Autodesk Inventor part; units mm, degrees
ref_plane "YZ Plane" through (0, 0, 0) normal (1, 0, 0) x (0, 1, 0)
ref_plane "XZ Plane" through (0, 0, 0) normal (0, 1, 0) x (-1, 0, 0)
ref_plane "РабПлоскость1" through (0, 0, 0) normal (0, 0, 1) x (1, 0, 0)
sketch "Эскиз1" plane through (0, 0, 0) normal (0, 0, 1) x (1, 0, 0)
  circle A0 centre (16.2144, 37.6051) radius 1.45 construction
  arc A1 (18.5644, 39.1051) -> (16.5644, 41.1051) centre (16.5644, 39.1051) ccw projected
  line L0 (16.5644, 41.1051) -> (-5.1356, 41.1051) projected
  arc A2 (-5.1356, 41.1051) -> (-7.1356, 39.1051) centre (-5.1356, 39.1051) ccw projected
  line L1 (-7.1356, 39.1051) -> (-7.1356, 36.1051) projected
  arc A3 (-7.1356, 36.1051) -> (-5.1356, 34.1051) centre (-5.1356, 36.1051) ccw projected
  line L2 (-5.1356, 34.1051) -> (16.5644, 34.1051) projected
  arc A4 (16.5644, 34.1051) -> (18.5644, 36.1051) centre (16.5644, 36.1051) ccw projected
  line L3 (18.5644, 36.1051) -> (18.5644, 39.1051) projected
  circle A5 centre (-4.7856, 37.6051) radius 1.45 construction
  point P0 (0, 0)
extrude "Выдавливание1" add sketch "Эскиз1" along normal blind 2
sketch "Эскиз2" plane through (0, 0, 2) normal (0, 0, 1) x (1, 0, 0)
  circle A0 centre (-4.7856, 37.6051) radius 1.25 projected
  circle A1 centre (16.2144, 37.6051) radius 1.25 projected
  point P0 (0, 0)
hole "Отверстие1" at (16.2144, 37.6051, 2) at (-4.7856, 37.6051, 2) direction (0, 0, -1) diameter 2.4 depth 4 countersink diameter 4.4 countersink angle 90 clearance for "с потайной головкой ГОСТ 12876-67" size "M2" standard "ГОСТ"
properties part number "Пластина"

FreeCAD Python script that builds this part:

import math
import FreeCAD as App
import Part
import Sketcher
from FreeCAD import Vector

doc = App.newDocument("Part")
params = doc.addObject("Spreadsheet::Sheet", "Params")
for row, (alias, value) in enumerate([
    ("sketch1_radius", "2 mm"),
    ("sketch1_height", "3 mm"),
    ("sketch1_width", "21.7 mm"),
    ("pad1_length", "2 mm"),
    ("sketch2_diameter", "2.4 mm"),
    ("hole_diameter", "2.4 mm"),
    ("hole_depth", "4 mm"),
    ("hole_csink_diameter", "4.4 mm"),
], start=1):
    params.set(f"A{row}", alias)
    params.set(f"B{row}", "=" + value)
    params.setAlias(f"B{row}", alias)

body = doc.addObject("PartDesign::Body", "Body")

# Sketch on XY plane
sketch1 = doc.addObject("Sketcher::SketchObject", "Sketch")
body.addObject(sketch1)
sketch1.AttachmentSupport = (doc.XY_Plane, [""])
sketch1.MapMode = "FlatFace"
sketch1.addGeometry(Part.LineSegment(Vector(18.5644, 36.1051, 0), Vector(18.5644, 39.1051, 0)), False)
sketch1.addGeometry(Part.ArcOfCircle(Part.Circle(Vector(16.5644, 39.1051, 0), Vector(0, 0, 1), 2), math.radians(0), math.radians(90)), False)
sketch1.addGeometry(Part.LineSegment(Vector(16.5644, 41.1051, 0), Vector(-5.1356, 41.1051, 0)), False)
sketch1.addGeometry(Part.ArcOfCircle(Part.Circle(Vector(-5.1356, 39.1051, 0), Vector(0, 0, 1), 2), math.radians(90), math.radians(180)), False)
sketch1.addGeometry(Part.LineSegment(Vector(-7.1356, 39.1051, 0), Vector(-7.1356, 36.1051, 0)), False)
sketch1.addGeometry(Part.ArcOfCircle(Part.Circle(Vector(-5.1356, 36.1051, 0), Vector(0, 0, 1), 2), math.radians(180), math.radians(270)), False)
sketch1.addGeometry(Part.LineSegment(Vector(-5.1356, 34.1051, 0), Vector(16.5644, 34.1051, 0)), False)
sketch1.addGeometry(Part.ArcOfCircle(Part.Circle(Vector(16.5644, 36.1051, 0), Vector(0, 0, 1), 2), math.radians(-90), math.radians(0)), False)
sketch1.addConstraint(Sketcher.Constraint("Tangent", 0, 2, 1, 1))
sketch1.addConstraint(Sketcher.Constraint("Tangent", 1, 2, 2, 1))
sketch1.addConstraint(Sketcher.Constraint("Tangent", 2, 2, 3, 1))
sketch1.addConstraint(Sketcher.Constraint("Tangent", 3, 2, 4, 1))
sketch1.addConstraint(Sketcher.Constraint("Tangent", 4, 2, 5, 1))
sketch1.addConstraint(Sketcher.Constraint("Tangent", 5, 2, 6, 1))
sketch1.addConstraint(Sketcher.Constraint("Tangent", 6, 2, 7, 1))
sketch1.addConstraint(Sketcher.Constraint("Tangent", 7, 2, 0, 1))
sketch1.addConstraint(Sketcher.Constraint("Vertical", 0))
sketch1.addConstraint(Sketcher.Constraint("Horizontal", 2))
sketch1.addConstraint(Sketcher.Constraint("Vertical", 4))
sketch1.addConstraint(Sketcher.Constraint("Horizontal", 6))
sketch1.addConstraint(Sketcher.Constraint("Equal", 1, 3))
sketch1.addConstraint(Sketcher.Constraint("Equal", 3, 5))
sketch1.addConstraint(Sketcher.Constraint("Equal", 5, 7))
sketch1.addConstraint(Sketcher.Constraint("Radius", 1, 2.0))
sketch1.addConstraint(Sketcher.Constraint("DistanceY", 0, 1, 0, 2, 3.0))
sketch1.addConstraint(Sketcher.Constraint("DistanceX", 2, 2, 2, 1, 21.7))
sketch1.addConstraint(Sketcher.Constraint("DistanceY", -1, 1, 1, 3, 39.105))
sketch1.addConstraint(Sketcher.Constraint("DistanceX", -1, 1, 1, 3, 16.5644))
sketch1.setExpression("Constraints[15]", "Params.sketch1_radius")
sketch1.setExpression("Constraints[16]", "Params.sketch1_height")
sketch1.setExpression("Constraints[17]", "Params.sketch1_width")
pad1 = doc.addObject("PartDesign::Pad", "Pad")
body.addObject(pad1)
pad1.Profile = sketch1
pad1.setExpression("Length", "Params.pad1_length")

# Sketch on XY plane
sketch2 = doc.addObject("Sketcher::SketchObject", "Sketch001")
body.addObject(sketch2)
sketch2.AttachmentSupport = (doc.XY_Plane, [""])
sketch2.MapMode = "FlatFace"
sketch2.AttachmentOffset = App.Placement(Vector(0, 0, 2), App.Rotation())
sketch2.addGeometry(Part.Circle(Vector(16.2144, 37.6051, 0), Vector(0, 0, 1), 1.2), False)
sketch2.addGeometry(Part.Circle(Vector(-4.7856, 37.6051, 0), Vector(0, 0, 1), 1.2), False)
sketch2.addConstraint(Sketcher.Constraint("Equal", 0, 1))
sketch2.addConstraint(Sketcher.Constraint("Horizontal", 0, 3, 1, 3))
sketch2.addConstraint(Sketcher.Constraint("Diameter", 0, 2.4))
sketch2.addConstraint(Sketcher.Constraint("DistanceX", 1, 3, 0, 3, 21.0))
sketch2.addConstraint(Sketcher.Constraint("DistanceY", -1, 1, 0, 3, 37.605))
sketch2.addConstraint(Sketcher.Constraint("DistanceX", -1, 1, 0, 3, 16.2144))
sketch2.setExpression("Constraints[2]", "Params.sketch2_diameter")
doc.recompute()
hole = doc.addObject("PartDesign::Hole", "Hole")
body.addObject(hole)
hole.Profile = sketch2
hole.ThreadType = "None"
hole.setExpression("Diameter", "Params.hole_diameter")
hole.DepthType = "Dimension"
hole.setExpression("Depth", "Params.hole_depth")
hole.DrillPoint = "Flat"
hole.HoleCutType = "Countersink"
hole.setExpression("HoleCutDiameter", "Params.hole_csink_diameter")
hole.HoleCutCountersinkAngle = 90

doc.recompute()
